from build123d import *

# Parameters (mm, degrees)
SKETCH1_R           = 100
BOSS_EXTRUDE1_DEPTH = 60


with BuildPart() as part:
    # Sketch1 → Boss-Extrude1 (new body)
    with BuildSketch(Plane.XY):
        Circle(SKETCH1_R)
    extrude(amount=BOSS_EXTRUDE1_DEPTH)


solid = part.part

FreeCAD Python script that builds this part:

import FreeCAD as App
import Part
import Sketcher

V = App.Vector
Q = App.Units.Quantity

doc = App.newDocument("Part")
params = doc.addObject("Spreadsheet::Sheet", "Params")
for row, (alias, value) in enumerate([
    ("sketch1_diameter", "200 mm"),
    ("pad1_length", "60 mm"),
], start=1):
    params.set(f"A{row}", alias)
    params.set(f"B{row}", "=" + value)
    params.setAlias(f"B{row}", alias)

body = doc.addObject("PartDesign::Body", "Body")

sketch1 = body.newObject("Sketcher::SketchObject", "Sketch")
sketch1.AttachmentSupport = (doc.getObject("XY_Plane"), [""])
sketch1.MapMode = "FlatFace"
sketch1.addGeometry(Part.Circle(V(0, 0, 0), V(0, 0, 1), 100), False)
sketch1.addConstraint([
    Sketcher.Constraint("Coincident", 0, 3, -1, 1),
    Sketcher.Constraint("Diameter", 0, Q("200 mm")),
])
sketch1.setExpression("Constraints[1]", "Params.sketch1_diameter")
pad1 = body.newObject("PartDesign::Pad", "Pad")
pad1.Profile = sketch1
pad1.setExpression("Length", "Params.pad1_length")

doc.recompute()
